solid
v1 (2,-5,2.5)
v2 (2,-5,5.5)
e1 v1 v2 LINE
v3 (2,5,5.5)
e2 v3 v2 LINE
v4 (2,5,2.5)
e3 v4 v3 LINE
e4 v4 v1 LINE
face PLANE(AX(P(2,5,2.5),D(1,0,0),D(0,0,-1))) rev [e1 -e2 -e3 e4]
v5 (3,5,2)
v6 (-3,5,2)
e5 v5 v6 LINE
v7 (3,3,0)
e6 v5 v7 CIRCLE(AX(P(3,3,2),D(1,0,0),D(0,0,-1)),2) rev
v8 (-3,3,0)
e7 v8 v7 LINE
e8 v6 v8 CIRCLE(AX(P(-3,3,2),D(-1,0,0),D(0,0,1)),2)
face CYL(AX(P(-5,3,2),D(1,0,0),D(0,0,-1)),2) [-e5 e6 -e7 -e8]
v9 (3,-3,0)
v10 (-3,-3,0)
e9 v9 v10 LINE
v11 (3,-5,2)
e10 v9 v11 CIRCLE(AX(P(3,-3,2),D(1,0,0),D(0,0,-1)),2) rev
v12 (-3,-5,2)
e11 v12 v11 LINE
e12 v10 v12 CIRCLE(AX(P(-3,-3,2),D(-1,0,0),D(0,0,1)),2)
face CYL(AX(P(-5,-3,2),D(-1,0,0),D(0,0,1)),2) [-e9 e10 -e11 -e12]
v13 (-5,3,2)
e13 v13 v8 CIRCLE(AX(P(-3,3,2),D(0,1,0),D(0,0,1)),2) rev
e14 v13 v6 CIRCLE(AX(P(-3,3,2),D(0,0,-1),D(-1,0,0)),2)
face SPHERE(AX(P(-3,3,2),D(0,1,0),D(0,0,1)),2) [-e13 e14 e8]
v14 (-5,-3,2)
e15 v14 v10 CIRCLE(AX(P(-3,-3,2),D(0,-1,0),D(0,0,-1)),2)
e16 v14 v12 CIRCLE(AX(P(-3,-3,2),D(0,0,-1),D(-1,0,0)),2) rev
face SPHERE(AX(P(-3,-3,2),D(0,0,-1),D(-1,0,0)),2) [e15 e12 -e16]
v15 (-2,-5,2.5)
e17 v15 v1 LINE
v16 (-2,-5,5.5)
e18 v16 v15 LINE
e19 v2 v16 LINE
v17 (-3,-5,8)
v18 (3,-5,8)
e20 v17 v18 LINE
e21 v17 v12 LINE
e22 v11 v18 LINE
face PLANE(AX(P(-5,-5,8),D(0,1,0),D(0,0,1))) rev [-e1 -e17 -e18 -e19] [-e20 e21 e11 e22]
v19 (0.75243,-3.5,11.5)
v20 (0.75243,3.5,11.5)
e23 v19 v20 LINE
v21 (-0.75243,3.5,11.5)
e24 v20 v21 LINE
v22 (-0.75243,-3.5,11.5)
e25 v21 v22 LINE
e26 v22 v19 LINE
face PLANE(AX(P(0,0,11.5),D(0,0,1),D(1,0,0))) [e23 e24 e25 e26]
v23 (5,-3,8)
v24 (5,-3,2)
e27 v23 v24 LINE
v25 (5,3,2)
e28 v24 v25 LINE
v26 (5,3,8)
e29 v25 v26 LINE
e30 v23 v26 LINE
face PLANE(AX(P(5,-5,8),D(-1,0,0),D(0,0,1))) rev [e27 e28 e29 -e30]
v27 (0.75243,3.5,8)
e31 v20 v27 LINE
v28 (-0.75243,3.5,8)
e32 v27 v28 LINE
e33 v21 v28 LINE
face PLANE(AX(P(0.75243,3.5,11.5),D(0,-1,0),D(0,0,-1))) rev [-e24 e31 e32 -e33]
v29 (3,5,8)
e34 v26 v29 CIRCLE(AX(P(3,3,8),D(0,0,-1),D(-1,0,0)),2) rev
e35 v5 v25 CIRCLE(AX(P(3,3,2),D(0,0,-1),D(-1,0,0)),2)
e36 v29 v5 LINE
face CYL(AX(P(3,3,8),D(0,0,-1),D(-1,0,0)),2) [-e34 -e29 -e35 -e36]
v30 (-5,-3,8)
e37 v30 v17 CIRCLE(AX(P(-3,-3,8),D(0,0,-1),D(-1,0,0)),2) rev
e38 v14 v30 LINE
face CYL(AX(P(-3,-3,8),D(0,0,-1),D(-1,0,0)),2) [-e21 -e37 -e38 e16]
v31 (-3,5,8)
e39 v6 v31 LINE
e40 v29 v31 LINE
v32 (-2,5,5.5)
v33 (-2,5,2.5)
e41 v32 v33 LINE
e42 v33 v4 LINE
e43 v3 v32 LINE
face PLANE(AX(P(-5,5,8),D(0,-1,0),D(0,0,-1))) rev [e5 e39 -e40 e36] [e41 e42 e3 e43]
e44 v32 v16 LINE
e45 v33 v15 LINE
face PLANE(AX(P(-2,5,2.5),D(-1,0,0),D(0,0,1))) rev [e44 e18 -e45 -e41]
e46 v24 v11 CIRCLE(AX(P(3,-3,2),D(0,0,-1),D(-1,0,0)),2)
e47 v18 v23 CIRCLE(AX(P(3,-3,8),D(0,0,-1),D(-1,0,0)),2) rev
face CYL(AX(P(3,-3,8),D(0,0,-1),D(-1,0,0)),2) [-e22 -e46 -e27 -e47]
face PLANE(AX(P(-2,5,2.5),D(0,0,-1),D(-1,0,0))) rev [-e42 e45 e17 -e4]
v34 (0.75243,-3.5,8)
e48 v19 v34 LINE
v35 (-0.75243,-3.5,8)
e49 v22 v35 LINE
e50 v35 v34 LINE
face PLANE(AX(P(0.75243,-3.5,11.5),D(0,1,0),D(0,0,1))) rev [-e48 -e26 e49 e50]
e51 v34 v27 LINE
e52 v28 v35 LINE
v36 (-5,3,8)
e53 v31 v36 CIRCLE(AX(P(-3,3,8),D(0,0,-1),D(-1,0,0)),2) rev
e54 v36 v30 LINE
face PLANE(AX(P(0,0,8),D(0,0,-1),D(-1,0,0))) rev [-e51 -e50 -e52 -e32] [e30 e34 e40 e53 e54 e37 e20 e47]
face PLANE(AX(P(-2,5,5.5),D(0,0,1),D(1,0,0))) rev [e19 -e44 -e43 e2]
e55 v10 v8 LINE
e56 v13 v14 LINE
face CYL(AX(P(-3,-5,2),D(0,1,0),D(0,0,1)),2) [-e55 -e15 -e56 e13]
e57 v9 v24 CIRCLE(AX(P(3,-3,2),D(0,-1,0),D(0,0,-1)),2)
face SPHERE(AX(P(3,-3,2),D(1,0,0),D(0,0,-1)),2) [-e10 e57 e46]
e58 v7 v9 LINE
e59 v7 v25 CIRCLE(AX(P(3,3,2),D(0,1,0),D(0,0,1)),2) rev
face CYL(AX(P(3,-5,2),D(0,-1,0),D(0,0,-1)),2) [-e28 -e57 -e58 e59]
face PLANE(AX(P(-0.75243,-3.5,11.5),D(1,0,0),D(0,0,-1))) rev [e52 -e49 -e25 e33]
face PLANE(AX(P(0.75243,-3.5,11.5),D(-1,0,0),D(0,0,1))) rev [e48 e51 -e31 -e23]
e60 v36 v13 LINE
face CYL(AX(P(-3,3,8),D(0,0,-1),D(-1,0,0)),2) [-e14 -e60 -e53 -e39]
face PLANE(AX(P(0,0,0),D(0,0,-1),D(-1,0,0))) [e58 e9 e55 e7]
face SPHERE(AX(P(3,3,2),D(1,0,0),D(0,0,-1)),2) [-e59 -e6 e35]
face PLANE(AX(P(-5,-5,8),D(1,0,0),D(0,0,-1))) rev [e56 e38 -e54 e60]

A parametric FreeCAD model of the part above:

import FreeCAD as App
import Part
import Sketcher


def edges_at(feature, points):
    """Names of the edges that pass closest to the given points."""
    edges = feature.Shape.Edges
    near = lambda p: min(range(len(edges)), key=lambda i: edges[i].distToShape(Part.Vertex(*p))[0])
    return sorted({f"Edge{near(p) + 1}" for p in points})

doc = App.newDocument("Part")
body = doc.addObject("PartDesign::Body", "Body")

# Sketch on XY plane
sketch1 = body.newObject("Sketcher::SketchObject", "Sketch")
sketch1.AttachmentSupport = (doc.getObject("XY_Plane"), [""])
sketch1.MapMode = "FlatFace"
sketch1.addGeometry(Part.LineSegment(App.Vector(-5, 5, 0), App.Vector(-5, -5, 0)), False)
sketch1.addGeometry(Part.LineSegment(App.Vector(-5, -5, 0), App.Vector(5, -5, 0)), False)
sketch1.addGeometry(Part.LineSegment(App.Vector(5, -5, 0), App.Vector(5, 5, 0)), False)
sketch1.addGeometry(Part.LineSegment(App.Vector(5, 5, 0), App.Vector(-5, 5, 0)), False)
sketch1.addConstraint(Sketcher.Constraint("Coincident", 0, 2, 1, 1))
sketch1.addConstraint(Sketcher.Constraint("Coincident", 1, 2, 2, 1))
sketch1.addConstraint(Sketcher.Constraint("Coincident", 2, 2, 3, 1))
sketch1.addConstraint(Sketcher.Constraint("Coincident", 3, 2, 0, 1))
sketch1.addConstraint(Sketcher.Constraint("Vertical", 0))
sketch1.addConstraint(Sketcher.Constraint("Horizontal", 1))
sketch1.addConstraint(Sketcher.Constraint("Vertical", 2))
sketch1.addConstraint(Sketcher.Constraint("Horizontal", 3))
sketch1.addConstraint(Sketcher.Constraint("Symmetric", 0, 2, 2, 2, -1, 1))
sketch1.addConstraint(Sketcher.Constraint("Equal", 3, 0))
sketch1.addConstraint(Sketcher.Constraint("DistanceX", 1, 1, 1, 2, 10.0))
pad1 = body.newObject("PartDesign::Pad", "Pad")
pad1.Profile = sketch1
pad1.Length = 8

# Sketch on XZ plane
sketch2 = body.newObject("Sketcher::SketchObject", "Sketch001")
sketch2.AttachmentSupport = (doc.getObject("XZ_Plane"), [""])
sketch2.MapMode = "FlatFace"
sketch2.AttachmentOffset = App.Placement(App.Vector(0, 0, 5), App.Rotation())
sketch2.addGeometry(Part.LineSegment(App.Vector(-2, 5.5, 0), App.Vector(-2, 2.5, 0)), False)
sketch2.addGeometry(Part.LineSegment(App.Vector(-2, 2.5, 0), App.Vector(2, 2.5, 0)), False)
sketch2.addGeometry(Part.LineSegment(App.Vector(2, 2.5, 0), App.Vector(2, 5.5, 0)), False)
sketch2.addGeometry(Part.LineSegment(App.Vector(2, 5.5, 0), App.Vector(-2, 5.5, 0)), False)
sketch2.addConstraint(Sketcher.Constraint("Coincident", 0, 2, 1, 1))
sketch2.addConstraint(Sketcher.Constraint("Coincident", 1, 2, 2, 1))
sketch2.addConstraint(Sketcher.Constraint("Coincident", 2, 2, 3, 1))
sketch2.addConstraint(Sketcher.Constraint("Coincident", 3, 2, 0, 1))
sketch2.addConstraint(Sketcher.Constraint("Vertical", 0))
sketch2.addConstraint(Sketcher.Constraint("Horizontal", 1))
sketch2.addConstraint(Sketcher.Constraint("Vertical", 2))
sketch2.addConstraint(Sketcher.Constraint("Horizontal", 3))
sketch2.addConstraint(Sketcher.Constraint("DistanceX", 1, 1, 1, 2, 4.0))
sketch2.addConstraint(Sketcher.Constraint("DistanceY", 0, 2, 0, 1, 3.0))
sketch2.addConstraint(Sketcher.Constraint("DistanceX", 0, 2, -1, 1, 2.0))
sketch2.addConstraint(Sketcher.Constraint("DistanceY", -1, 1, 0, 2, 2.5))
pocket1 = body.newObject("PartDesign::Pocket", "Pocket")
pocket1.Profile = sketch2
pocket1.Type = "ThroughAll"

# Sketch on XY plane
sketch3 = body.newObject("Sketcher::SketchObject", "Sketch002")
sketch3.AttachmentSupport = (doc.getObject("XY_Plane"), [""])
sketch3.MapMode = "FlatFace"
sketch3.AttachmentOffset = App.Placement(App.Vector(0, 0, 8), App.Rotation())
sketch3.addGeometry(Part.LineSegment(App.Vector(-0.8, 3.5, 0), App.Vector(-0.8, -3.5, 0)), False)
sketch3.addGeometry(Part.LineSegment(App.Vector(-0.8, -3.5, 0), App.Vector(0.8, -3.5, 0)), False)
sketch3.addGeometry(Part.LineSegment(App.Vector(0.8, -3.5, 0), App.Vector(0.8, 3.5, 0)), False)
sketch3.addGeometry(Part.LineSegment(App.Vector(0.8, 3.5, 0), App.Vector(-0.8, 3.5, 0)), False)
sketch3.addConstraint(Sketcher.Constraint("Coincident", 0, 2, 1, 1))
sketch3.addConstraint(Sketcher.Constraint("Coincident", 1, 2, 2, 1))
sketch3.addConstraint(Sketcher.Constraint("Coincident", 2, 2, 3, 1))
sketch3.addConstraint(Sketcher.Constraint("Coincident", 3, 2, 0, 1))
sketch3.addConstraint(Sketcher.Constraint("Vertical", 0))
sketch3.addConstraint(Sketcher.Constraint("Horizontal", 1))
sketch3.addConstraint(Sketcher.Constraint("Vertical", 2))
sketch3.addConstraint(Sketcher.Constraint("Horizontal", 3))
sketch3.addConstraint(Sketcher.Constraint("Symmetric", 0, 2, 2, 2, -1, 1))
sketch3.addConstraint(Sketcher.Constraint("DistanceY", 0, 2, 0, 1, 7.0))
sketch3.addConstraint(Sketcher.Constraint("DistanceX", 1, 1, 1, 2, 1.504859))
pad2 = body.newObject("PartDesign::Pad", "Pad001")
pad2.Profile = sketch3
pad2.Length = 3.5
doc.recompute()

fillet = body.newObject("PartDesign::Fillet", "Fillet")
fillet.Base = (pad2, edges_at(pad2, [
    (0, -5, 0),
    (-5, 0, 0),
    (0, 5, 0),
    (5, 0, 0),
    (5, -5, 4),
    (-5, -5, 4),
    (-5, 5, 4),
    (5, 5, 4),
]))
fillet.Radius = 2

doc.recompute()
